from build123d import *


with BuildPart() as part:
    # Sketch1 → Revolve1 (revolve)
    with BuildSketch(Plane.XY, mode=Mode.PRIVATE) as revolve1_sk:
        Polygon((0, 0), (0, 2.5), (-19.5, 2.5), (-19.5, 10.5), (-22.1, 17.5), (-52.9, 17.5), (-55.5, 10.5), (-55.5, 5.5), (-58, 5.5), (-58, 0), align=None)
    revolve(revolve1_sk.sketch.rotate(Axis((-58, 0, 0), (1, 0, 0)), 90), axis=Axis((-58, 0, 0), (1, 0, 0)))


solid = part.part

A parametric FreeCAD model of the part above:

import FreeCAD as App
import Part
import Sketcher

V = App.Vector

doc = App.newDocument("Part")
body = doc.addObject("PartDesign::Body", "Body")

sketch1 = body.newObject("Sketcher::SketchObject", "Sketch")
sketch1.AttachmentSupport = (doc.getObject("XY_Plane"), [""])
sketch1.MapMode = "FlatFace"
sketch1.addGeometry(Part.LineSegment(V(0, 0, 0), V(0, 2.5, 0)), False)
sketch1.addGeometry(Part.LineSegment(V(0, 2.5, 0), V(-19.5, 2.5, 0)), False)
sketch1.addGeometry(Part.LineSegment(V(-19.5, 2.5, 0), V(-19.5, 10.5, 0)), False)
sketch1.addGeometry(Part.LineSegment(V(-19.5, 10.5, 0), V(-22.1, 17.5, 0)), False)
sketch1.addGeometry(Part.LineSegment(V(-22.1, 17.5, 0), V(-52.9, 17.5, 0)), False)
sketch1.addGeometry(Part.LineSegment(V(-52.9, 17.5, 0), V(-55.5, 10.5, 0)), False)
sketch1.addGeometry(Part.LineSegment(V(-55.5, 10.5, 0), V(-55.5, 5.5, 0)), False)
sketch1.addGeometry(Part.LineSegment(V(-55.5, 5.5, 0), V(-58, 5.5, 0)), False)
sketch1.addGeometry(Part.LineSegment(V(-58, 5.5, 0), V(-58, 0, 0)), False)
sketch1.addGeometry(Part.LineSegment(V(-58, 0, 0), V(0, 0, 0)), False)
sketch1.addConstraint(Sketcher.Constraint("Coincident", 0, 2, 1, 1))
sketch1.addConstraint(Sketcher.Constraint("Coincident", 1, 2, 2, 1))
sketch1.addConstraint(Sketcher.Constraint("Coincident", 2, 2, 3, 1))
sketch1.addConstraint(Sketcher.Constraint("Coincident", 3, 2, 4, 1))
sketch1.addConstraint(Sketcher.Constraint("Coincident", 4, 2, 5, 1))
sketch1.addConstraint(Sketcher.Constraint("Coincident", 5, 2, 6, 1))
sketch1.addConstraint(Sketcher.Constraint("Coincident", 6, 2, 7, 1))
sketch1.addConstraint(Sketcher.Constraint("Coincident", 7, 2, 8, 1))
sketch1.addConstraint(Sketcher.Constraint("Coincident", 8, 2, 9, 1))
sketch1.addConstraint(Sketcher.Constraint("Coincident", 9, 2, 0, 1))
sketch1.addConstraint(Sketcher.Constraint("Vertical", 0))
sketch1.addConstraint(Sketcher.Constraint("Horizontal", 1))
sketch1.addConstraint(Sketcher.Constraint("Vertical", 2))
sketch1.addConstraint(Sketcher.Constraint("Horizontal", 4))
sketch1.addConstraint(Sketcher.Constraint("Vertical", 6))
sketch1.addConstraint(Sketcher.Constraint("Horizontal", 7))
sketch1.addConstraint(Sketcher.Constraint("Vertical", 8))
sketch1.addConstraint(Sketcher.Constraint("Horizontal", 9))
sketch1.addConstraint(Sketcher.Constraint("Coincident", 9, 2, -1, 1))
sketch1.addConstraint(Sketcher.Constraint("Horizontal", 2, 2, 5, 2))
sketch1.addConstraint(Sketcher.Constraint("Equal", 7, 0))
sketch1.addConstraint(Sketcher.Constraint("Equal", 3, 5))
sketch1.addConstraint(Sketcher.Constraint("DistanceX", 9, 1, 9, 2, 58.0))
sketch1.addConstraint(Sketcher.Constraint("DistanceY", 2, 1, 2, 2, 8.0))
sketch1.addConstraint(Sketcher.Constraint("DistanceY", 6, 2, 6, 1, 5.0))
sketch1.addConstraint(Sketcher.Constraint("DistanceX", 1, 2, 1, 1, 19.5))
sketch1.addConstraint(Sketcher.Constraint("DistanceX", 4, 2, 4, 1, 30.8))
sketch1.addConstraint(Sketcher.Constraint("DistanceX", 7, 2, 7, 1, 2.5))
sketch1.addConstraint(Sketcher.Constraint("DistanceY", 2, 2, 3, 2, 7.0))
revolution = body.newObject("PartDesign::Revolution", "Revolution")
revolution.Profile = sketch1
revolution.ReferenceAxis = (sketch1, ["H_Axis"])
revolution.Angle = 360

doc.recompute()
